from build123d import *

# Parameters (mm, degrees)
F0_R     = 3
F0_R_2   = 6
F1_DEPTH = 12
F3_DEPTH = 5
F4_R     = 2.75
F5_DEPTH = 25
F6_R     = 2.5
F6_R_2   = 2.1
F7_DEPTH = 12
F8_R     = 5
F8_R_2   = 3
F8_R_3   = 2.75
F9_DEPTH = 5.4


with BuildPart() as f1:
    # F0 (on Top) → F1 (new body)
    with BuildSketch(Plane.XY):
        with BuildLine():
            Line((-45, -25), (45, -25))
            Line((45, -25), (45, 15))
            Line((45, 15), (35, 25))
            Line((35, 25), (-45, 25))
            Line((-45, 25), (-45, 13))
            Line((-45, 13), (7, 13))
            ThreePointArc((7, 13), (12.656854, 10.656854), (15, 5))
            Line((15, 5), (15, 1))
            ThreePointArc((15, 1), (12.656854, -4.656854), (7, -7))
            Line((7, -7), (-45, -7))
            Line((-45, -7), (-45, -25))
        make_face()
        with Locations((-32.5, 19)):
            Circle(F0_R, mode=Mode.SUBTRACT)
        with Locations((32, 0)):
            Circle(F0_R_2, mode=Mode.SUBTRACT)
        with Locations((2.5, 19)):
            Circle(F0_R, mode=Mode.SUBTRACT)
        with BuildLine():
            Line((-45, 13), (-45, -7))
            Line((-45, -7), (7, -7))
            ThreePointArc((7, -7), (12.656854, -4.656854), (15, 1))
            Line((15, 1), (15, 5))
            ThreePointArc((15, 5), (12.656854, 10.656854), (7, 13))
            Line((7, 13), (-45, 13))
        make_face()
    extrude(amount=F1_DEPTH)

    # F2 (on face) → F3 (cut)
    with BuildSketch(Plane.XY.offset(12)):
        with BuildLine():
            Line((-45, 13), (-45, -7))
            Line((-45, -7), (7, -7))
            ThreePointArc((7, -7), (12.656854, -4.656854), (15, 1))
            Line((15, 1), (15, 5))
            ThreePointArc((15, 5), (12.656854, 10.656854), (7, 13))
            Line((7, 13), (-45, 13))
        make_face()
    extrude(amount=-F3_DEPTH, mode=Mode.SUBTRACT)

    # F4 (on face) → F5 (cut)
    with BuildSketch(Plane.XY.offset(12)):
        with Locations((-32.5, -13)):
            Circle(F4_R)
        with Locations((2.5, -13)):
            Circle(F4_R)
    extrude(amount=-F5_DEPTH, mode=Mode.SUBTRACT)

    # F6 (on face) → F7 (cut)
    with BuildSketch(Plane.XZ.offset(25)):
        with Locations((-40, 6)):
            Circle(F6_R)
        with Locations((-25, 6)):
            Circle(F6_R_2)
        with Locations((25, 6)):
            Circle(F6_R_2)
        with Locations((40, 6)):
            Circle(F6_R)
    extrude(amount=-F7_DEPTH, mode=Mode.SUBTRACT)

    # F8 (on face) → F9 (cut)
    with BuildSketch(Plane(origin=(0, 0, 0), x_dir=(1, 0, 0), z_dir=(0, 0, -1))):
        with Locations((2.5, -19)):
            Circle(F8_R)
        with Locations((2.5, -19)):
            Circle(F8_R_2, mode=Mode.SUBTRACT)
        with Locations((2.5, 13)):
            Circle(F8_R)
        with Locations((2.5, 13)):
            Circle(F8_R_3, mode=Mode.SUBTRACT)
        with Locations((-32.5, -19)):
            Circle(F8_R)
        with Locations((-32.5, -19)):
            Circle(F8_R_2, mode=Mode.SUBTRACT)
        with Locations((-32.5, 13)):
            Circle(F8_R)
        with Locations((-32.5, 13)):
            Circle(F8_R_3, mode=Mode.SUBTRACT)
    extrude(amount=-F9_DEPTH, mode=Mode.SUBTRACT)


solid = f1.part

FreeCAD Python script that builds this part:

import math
import FreeCAD as App
import Part
import Sketcher
from FreeCAD import Vector

doc = App.newDocument("Part")
body = doc.addObject("PartDesign::Body", "Body")

# Sketch on XY plane
sketch1 = body.newObject("Sketcher::SketchObject", "Sketch")
sketch1.AttachmentSupport = (doc.getObject("XY_Plane"), [""])
sketch1.MapMode = "FlatFace"
sketch1.addGeometry([
    Part.LineSegment(Vector(-45, -25, 0), Vector(45, -25, 0)),  # 0
    Part.LineSegment(Vector(45, -25, 0), Vector(45, 15, 0)),  # 1
    Part.LineSegment(Vector(45, 15, 0), Vector(35, 25, 0)),  # 2
    Part.LineSegment(Vector(35, 25, 0), Vector(-45, 25, 0)),  # 3
    Part.LineSegment(Vector(-45, 25, 0), Vector(-45, -25, 0)),  # 4
    Part.Circle(Vector(32, 0, 0), Vector(0, 0, 1), 6),  # 5
    Part.Circle(Vector(-32.5, 19, 0), Vector(0, 0, 1), 3),  # 6
    Part.Circle(Vector(2.5, 19, 0), Vector(0, 0, 1), 3),  # 7
], False)
sketch1.addConstraint([
    Sketcher.Constraint("Coincident", 0, 2, 1, 1),
    Sketcher.Constraint("Coincident", 1, 2, 2, 1),
    Sketcher.Constraint("Coincident", 2, 2, 3, 1),
    Sketcher.Constraint("Coincident", 3, 2, 4, 1),
    Sketcher.Constraint("Coincident", 4, 2, 0, 1),
    Sketcher.Constraint("Horizontal", 0),
    Sketcher.Constraint("Vertical", 1),
    Sketcher.Constraint("Horizontal", 3),
    Sketcher.Constraint("Vertical", 4),
    Sketcher.Constraint("Equal", 6, 7),
    Sketcher.Constraint("Symmetric", 0, 2, 3, 2, -1, 1),
    Sketcher.Constraint("PointOnObject", 5, 3, -1),
    Sketcher.Constraint("Horizontal", 6, 3, 7, 3),
    Sketcher.Constraint("Diameter", 5, 12.0),
    Sketcher.Constraint("Diameter", 6, 6.0),
    Sketcher.Constraint("DistanceX", 0, 1, 0, 2, 90.0),
    Sketcher.Constraint("DistanceX", 3, 2, 3, 1, 80.0),
    Sketcher.Constraint("DistanceY", 1, 1, 1, 2, 40.0),
    Sketcher.Constraint("DistanceY", 4, 2, 4, 1, 50.0),
    Sketcher.Constraint("DistanceX", -1, 1, 5, 3, 32.0),
    Sketcher.Constraint("DistanceY", -1, 1, 6, 3, 19.0),
    Sketcher.Constraint("DistanceX", 6, 3, 7, 3, 35.0),
    Sketcher.Constraint("DistanceX", 6, 3, -1, 1, 32.5),
])
pad1 = body.newObject("PartDesign::Pad", "Pad")
pad1.Profile = sketch1
pad1.Length = 12

# Sketch on XY plane
sketch2 = body.newObject("Sketcher::SketchObject", "Sketch001")
sketch2.AttachmentSupport = (doc.getObject("XY_Plane"), [""])
sketch2.MapMode = "FlatFace"
sketch2.AttachmentOffset = App.Placement(Vector(0, 0, 12), App.Rotation())
sketch2.addGeometry([
    Part.LineSegment(Vector(-45, 13, 0), Vector(-45, -7, 0)),  # 0
    Part.LineSegment(Vector(-45, -7, 0), Vector(7, -7, 0)),  # 1
    Part.ArcOfCircle(Part.Circle(Vector(7, 1, 0), Vector(0, 0, 1), 8), math.radians(-90), math.radians(0)),  # 2
    Part.LineSegment(Vector(15, 1, 0), Vector(15, 5, 0)),  # 3
    Part.ArcOfCircle(Part.Circle(Vector(7, 5, 0), Vector(0, 0, 1), 8), math.radians(0), math.radians(90)),  # 4
    Part.LineSegment(Vector(7, 13, 0), Vector(-45, 13, 0)),  # 5
], False)
sketch2.addConstraint([
    Sketcher.Constraint("Coincident", 0, 2, 1, 1),
    Sketcher.Constraint("Tangent", 1, 2, 2, 1),
    Sketcher.Constraint("Tangent", 2, 2, 3, 1),
    Sketcher.Constraint("Tangent", 3, 2, 4, 1),
    Sketcher.Constraint("Tangent", 4, 2, 5, 1),
    Sketcher.Constraint("Coincident", 5, 2, 0, 1),
    Sketcher.Constraint("Vertical", 0),
    Sketcher.Constraint("Horizontal", 1),
    Sketcher.Constraint("Vertical", 3),
    Sketcher.Constraint("Horizontal", 5),
    Sketcher.Constraint("Equal", 2, 4),
    Sketcher.Constraint("Radius", 2, 8.000001),
    Sketcher.Constraint("DistanceX", 1, 1, 1, 2, 52.0),
    Sketcher.Constraint("DistanceY", 0, 2, 0, 1, 20.0),
    Sketcher.Constraint("DistanceX", -1, 1, 2, 3, 6.999999),
    Sketcher.Constraint("DistanceY", -1, 1, 2, 3, 1.000001),
])
pocket1 = body.newObject("PartDesign::Pocket", "Pocket")
pocket1.Profile = sketch2
pocket1.Length = 5

# Sketch on XY plane
sketch3 = body.newObject("Sketcher::SketchObject", "Sketch002")
sketch3.AttachmentSupport = (doc.getObject("XY_Plane"), [""])
sketch3.MapMode = "FlatFace"
sketch3.AttachmentOffset = App.Placement(Vector(0, 0, 12), App.Rotation())
sketch3.addGeometry([
    Part.Circle(Vector(-32.5, -13, 0), Vector(0, 0, 1), 2.8),
    Part.Circle(Vector(2.5, -13, 0), Vector(0, 0, 1), 2.8),
], False)
sketch3.addConstraint([
    Sketcher.Constraint("Equal", 0, 1),
    Sketcher.Constraint("Horizontal", 0, 3, 1, 3),
    Sketcher.Constraint("Diameter", 0, 5.5),
    Sketcher.Constraint("DistanceY", 0, 3, -1, 1, 13.0),
    Sketcher.Constraint("DistanceX", 0, 3, 1, 3, 35.0),
    Sketcher.Constraint("DistanceX", 0, 3, -1, 1, 32.5),
])
pocket2 = body.newObject("PartDesign::Pocket", "Pocket001")
pocket2.Profile = sketch3
pocket2.Length = 25

# Sketch on XZ plane
sketch4 = body.newObject("Sketcher::SketchObject", "Sketch003")
sketch4.AttachmentSupport = (doc.getObject("XZ_Plane"), [""])
sketch4.MapMode = "FlatFace"
sketch4.AttachmentOffset = App.Placement(Vector(0, 0, 25), App.Rotation())
sketch4.addGeometry([
    Part.Circle(Vector(-40, 6, 0), Vector(0, 0, 1), 2.5),
    Part.Circle(Vector(-25, 6, 0), Vector(0, 0, 1), 2.1),
    Part.Circle(Vector(25, 6, 0), Vector(0, 0, 1), 2.1),
    Part.Circle(Vector(40, 6, 0), Vector(0, 0, 1), 2.5),
], False)
sketch4.addConstraint([
    Sketcher.Constraint("Equal", 1, 2),
    Sketcher.Constraint("Equal", 0, 3),
    Sketcher.Constraint("Symmetric", 1, 3, 2, 3, -2),
    Sketcher.Constraint("Symmetric", 0, 3, 3, 3, -2),
    Sketcher.Constraint("Horizontal", 0, 3, 1, 3),
    Sketcher.Constraint("Diameter", 0, 5.0),
    Sketcher.Constraint("Diameter", 1, 4.2),
    Sketcher.Constraint("DistanceX", 0, 3, -1, 1, 40.0),
    Sketcher.Constraint("DistanceY", -1, 1, 0, 3, 6.0),
    Sketcher.Constraint("DistanceX", 1, 3, -1, 1, 25.0),
])
pocket3 = body.newObject("PartDesign::Pocket", "Pocket002")
pocket3.Profile = sketch4
pocket3.Length = 12

# Sketch on XY plane
sketch5 = body.newObject("Sketcher::SketchObject", "Sketch004")
sketch5.AttachmentSupport = (doc.getObject("XY_Plane"), [""])
sketch5.MapMode = "FlatFace"
sketch5.addGeometry([
    Part.Circle(Vector(2.5, 19, 0), Vector(0, 0, 1), 5),  # 0
    Part.Circle(Vector(2.5, 19, 0), Vector(0, 0, 1), 3),  # 1
    Part.Circle(Vector(2.5, -13, 0), Vector(0, 0, 1), 5),  # 2
    Part.Circle(Vector(2.5, -13, 0), Vector(0, 0, 1), 2.8),  # 3
    Part.Circle(Vector(-32.5, 19, 0), Vector(0, 0, 1), 5),  # 4
    Part.Circle(Vector(-32.5, 19, 0), Vector(0, 0, 1), 3),  # 5
    Part.Circle(Vector(-32.5, -13, 0), Vector(0, 0, 1), 5),  # 6
    Part.Circle(Vector(-32.5, -13, 0), Vector(0, 0, 1), 2.8),  # 7
], False)
sketch5.addConstraint([
    Sketcher.Constraint("Coincident", 1, 3, 0, 3),
    Sketcher.Constraint("Coincident", 3, 3, 2, 3),
    Sketcher.Constraint("Coincident", 5, 3, 4, 3),
    Sketcher.Constraint("Coincident", 7, 3, 6, 3),
    Sketcher.Constraint("Equal", 0, 2),
    Sketcher.Constraint("Equal", 2, 4),
    Sketcher.Constraint("Equal", 1, 5),
    Sketcher.Constraint("Equal", 4, 6),
    Sketcher.Constraint("Equal", 3, 7),
    Sketcher.Constraint("Horizontal", 1, 3, 4, 3),
    Sketcher.Constraint("Horizontal", 3, 3, 6, 3),
    Sketcher.Constraint("Vertical", 1, 3, 2, 3),
    Sketcher.Constraint("Vertical", 5, 3, 6, 3),
    Sketcher.Constraint("Diameter", 0, 10.0),
    Sketcher.Constraint("Diameter", 1, 6.0),
    Sketcher.Constraint("Diameter", 3, 5.5),
    Sketcher.Constraint("DistanceY", -1, 1, 0, 3, 19.0),
    Sketcher.Constraint("DistanceY", 2, 3, -1, 1, 13.0),
    Sketcher.Constraint("DistanceX", 4, 3, 0, 3, 35.0),
    Sketcher.Constraint("DistanceX", -1, 1, 0, 3, 2.5),
])
pocket4 = body.newObject("PartDesign::Pocket", "Pocket003")
pocket4.Profile = sketch5
pocket4.Length = 5.4
pocket4.Reversed = True

doc.recompute()
